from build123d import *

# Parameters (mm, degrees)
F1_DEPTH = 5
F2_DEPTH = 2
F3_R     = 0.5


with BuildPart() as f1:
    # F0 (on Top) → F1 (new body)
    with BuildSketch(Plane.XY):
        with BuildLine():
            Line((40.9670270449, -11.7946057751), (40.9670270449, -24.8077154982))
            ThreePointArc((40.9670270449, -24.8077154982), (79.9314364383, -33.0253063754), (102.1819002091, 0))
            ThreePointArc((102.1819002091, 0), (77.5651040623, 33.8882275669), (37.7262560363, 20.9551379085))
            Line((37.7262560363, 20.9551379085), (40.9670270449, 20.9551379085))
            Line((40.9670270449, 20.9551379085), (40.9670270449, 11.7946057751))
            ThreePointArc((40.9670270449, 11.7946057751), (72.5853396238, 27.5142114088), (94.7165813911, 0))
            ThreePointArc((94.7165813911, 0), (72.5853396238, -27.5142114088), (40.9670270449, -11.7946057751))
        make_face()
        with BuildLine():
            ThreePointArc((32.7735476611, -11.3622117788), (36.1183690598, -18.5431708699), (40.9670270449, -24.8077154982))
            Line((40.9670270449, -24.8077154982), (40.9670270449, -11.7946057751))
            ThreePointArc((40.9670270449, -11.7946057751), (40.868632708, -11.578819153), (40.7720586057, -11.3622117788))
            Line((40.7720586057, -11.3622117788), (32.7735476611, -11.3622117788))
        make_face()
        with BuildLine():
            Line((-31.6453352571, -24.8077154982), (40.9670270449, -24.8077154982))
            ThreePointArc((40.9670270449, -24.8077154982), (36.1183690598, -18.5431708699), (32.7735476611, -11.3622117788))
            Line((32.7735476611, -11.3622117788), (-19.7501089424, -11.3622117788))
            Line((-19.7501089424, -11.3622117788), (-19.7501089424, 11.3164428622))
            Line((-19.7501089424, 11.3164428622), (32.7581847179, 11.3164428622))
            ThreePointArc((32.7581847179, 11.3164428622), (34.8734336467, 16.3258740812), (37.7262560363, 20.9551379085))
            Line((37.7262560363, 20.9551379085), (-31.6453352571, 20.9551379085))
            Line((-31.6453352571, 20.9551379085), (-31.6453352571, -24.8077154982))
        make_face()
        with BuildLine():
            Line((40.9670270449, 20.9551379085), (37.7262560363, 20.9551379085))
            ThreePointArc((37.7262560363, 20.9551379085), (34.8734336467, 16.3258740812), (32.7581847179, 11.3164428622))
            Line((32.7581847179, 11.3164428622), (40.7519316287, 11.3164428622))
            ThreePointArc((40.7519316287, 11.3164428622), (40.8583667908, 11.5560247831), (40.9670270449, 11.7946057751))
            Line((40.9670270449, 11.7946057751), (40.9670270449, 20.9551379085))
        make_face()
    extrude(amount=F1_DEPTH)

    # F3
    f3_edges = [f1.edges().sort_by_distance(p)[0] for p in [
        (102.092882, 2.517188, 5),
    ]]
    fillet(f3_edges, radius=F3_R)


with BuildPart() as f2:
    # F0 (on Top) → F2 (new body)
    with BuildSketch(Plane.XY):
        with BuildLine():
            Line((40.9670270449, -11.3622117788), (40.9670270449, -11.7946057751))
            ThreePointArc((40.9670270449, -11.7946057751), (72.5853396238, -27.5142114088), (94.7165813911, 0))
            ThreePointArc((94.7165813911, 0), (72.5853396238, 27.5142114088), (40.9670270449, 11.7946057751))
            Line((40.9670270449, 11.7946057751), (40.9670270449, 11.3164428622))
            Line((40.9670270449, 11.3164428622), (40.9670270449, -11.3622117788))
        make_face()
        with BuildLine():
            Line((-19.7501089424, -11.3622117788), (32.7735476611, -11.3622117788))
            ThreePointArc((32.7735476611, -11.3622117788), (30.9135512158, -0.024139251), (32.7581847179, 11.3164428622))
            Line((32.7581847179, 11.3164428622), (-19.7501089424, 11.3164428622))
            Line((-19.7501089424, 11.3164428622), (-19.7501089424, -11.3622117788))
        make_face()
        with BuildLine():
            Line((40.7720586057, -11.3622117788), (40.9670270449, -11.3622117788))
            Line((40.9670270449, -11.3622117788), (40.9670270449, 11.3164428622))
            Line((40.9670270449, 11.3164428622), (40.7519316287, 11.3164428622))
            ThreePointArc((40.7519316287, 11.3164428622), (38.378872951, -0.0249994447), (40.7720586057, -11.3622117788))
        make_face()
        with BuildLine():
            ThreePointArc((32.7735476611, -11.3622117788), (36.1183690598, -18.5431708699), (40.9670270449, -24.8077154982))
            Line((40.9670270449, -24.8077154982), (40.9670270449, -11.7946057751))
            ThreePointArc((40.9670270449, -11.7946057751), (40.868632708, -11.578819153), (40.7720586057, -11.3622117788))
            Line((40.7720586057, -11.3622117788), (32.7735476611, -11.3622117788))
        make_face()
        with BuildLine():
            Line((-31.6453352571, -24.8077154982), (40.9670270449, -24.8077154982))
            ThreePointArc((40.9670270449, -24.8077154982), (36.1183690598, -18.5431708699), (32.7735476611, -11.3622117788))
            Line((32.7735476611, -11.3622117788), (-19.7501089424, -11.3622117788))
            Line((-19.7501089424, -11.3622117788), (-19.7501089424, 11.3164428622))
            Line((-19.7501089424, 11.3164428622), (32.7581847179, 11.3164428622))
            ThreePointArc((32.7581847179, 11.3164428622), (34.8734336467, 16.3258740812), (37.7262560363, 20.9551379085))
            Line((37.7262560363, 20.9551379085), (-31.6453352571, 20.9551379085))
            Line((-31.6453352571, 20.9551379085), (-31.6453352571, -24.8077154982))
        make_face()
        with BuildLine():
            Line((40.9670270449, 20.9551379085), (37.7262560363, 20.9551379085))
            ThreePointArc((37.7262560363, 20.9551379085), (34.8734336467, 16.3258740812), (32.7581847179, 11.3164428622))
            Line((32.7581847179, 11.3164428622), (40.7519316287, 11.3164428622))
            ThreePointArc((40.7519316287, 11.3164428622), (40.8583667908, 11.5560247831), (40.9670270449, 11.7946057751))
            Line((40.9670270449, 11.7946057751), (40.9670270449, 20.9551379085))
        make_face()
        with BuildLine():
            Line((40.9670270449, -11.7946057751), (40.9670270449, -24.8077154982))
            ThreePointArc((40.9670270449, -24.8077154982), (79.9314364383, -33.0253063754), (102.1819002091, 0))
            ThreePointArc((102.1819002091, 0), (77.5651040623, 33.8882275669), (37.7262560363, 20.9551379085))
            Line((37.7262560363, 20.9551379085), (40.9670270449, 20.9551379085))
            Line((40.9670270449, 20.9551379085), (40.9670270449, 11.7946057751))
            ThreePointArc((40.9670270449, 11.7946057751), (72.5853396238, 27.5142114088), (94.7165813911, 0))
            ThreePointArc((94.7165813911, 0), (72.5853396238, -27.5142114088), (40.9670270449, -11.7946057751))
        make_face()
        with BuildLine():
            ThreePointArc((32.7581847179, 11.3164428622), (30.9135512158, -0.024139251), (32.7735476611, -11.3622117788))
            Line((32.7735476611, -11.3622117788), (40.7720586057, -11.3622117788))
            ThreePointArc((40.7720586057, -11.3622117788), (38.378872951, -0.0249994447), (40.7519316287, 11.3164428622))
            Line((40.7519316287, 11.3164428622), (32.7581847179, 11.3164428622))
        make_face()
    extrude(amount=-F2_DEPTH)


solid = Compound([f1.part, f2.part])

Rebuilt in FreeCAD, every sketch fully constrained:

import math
import FreeCAD as App
import Part
import Sketcher
from FreeCAD import Vector
Q = App.Units.Quantity


def edges_at(feature, points):
    """Names of the edges that pass closest to the given points."""
    edges = feature.Shape.Edges
    near = lambda p: min(range(len(edges)), key=lambda i: edges[i].distToShape(Part.Vertex(*p))[0])
    return sorted({f"Edge{near(p) + 1}" for p in points})

doc = App.newDocument("Part")
body = doc.addObject("PartDesign::Body", "Body")

sketch1 = body.newObject("Sketcher::SketchObject", "Sketch")
sketch1.AttachmentSupport = (doc.getObject("XY_Plane"), [""])
sketch1.MapMode = "FlatFace"
sketch1.addGeometry([
    Part.ArcOfCircle(Part.Circle(Vector(66.55, 0, 0), Vector(0, 0, 1), 35.63), math.radians(0), math.radians(144)),
    Part.LineSegment(Vector(37.73, 20.96, 0), Vector(-31.65, 20.96, 0)),
    Part.LineSegment(Vector(-31.65, 20.96, 0), Vector(-31.65, -24.81, 0)),
    Part.LineSegment(Vector(-31.65, -24.81, 0), Vector(40.97, -24.81, 0)),
    Part.ArcOfCircle(Part.Circle(Vector(66.55, 0, 0), Vector(0, 0, 1), 35.63), math.radians(-136), math.radians(0)),
    Part.LineSegment(Vector(-19.75, 11.32, 0), Vector(40.75, 11.32, 0)),
    Part.ArcOfCircle(Part.Circle(Vector(66.55, 0, 0), Vector(0, 0, 1), 28.17), math.radians(155.25), math.radians(156.31)),
    Part.ArcOfCircle(Part.Circle(Vector(66.55, 0, 0), Vector(0, 0, 1), 28.17), math.radians(0), math.radians(155)),
    Part.ArcOfCircle(Part.Circle(Vector(66.55, 0, 0), Vector(0, 0, 1), 28.17), math.radians(-155), math.radians(0)),
    Part.ArcOfCircle(Part.Circle(Vector(66.55, 0, 0), Vector(0, 0, 1), 28.17), math.radians(-156.21), math.radians(-155.25)),
    Part.LineSegment(Vector(40.77, -11.36, 0), Vector(-19.75, -11.36, 0)),
    Part.LineSegment(Vector(-19.75, -11.36, 0), Vector(-19.75, 11.32, 0)),
], False)
sketch1.addConstraint([
    Sketcher.Constraint("Coincident", 0, 2, 1, 1),
    Sketcher.Constraint("Coincident", 1, 2, 2, 1),
    Sketcher.Constraint("Coincident", 2, 2, 3, 1),
    Sketcher.Constraint("Coincident", 3, 2, 4, 1),
    Sketcher.Constraint("Tangent", 4, 2, 0, 1),
    Sketcher.Constraint("Coincident", 5, 2, 6, 2),
    Sketcher.Constraint("Tangent", 6, 1, 7, 2),
    Sketcher.Constraint("Tangent", 7, 1, 8, 2),
    Sketcher.Constraint("Tangent", 8, 1, 9, 2),
    Sketcher.Constraint("Coincident", 9, 1, 10, 1),
    Sketcher.Constraint("Coincident", 10, 2, 11, 1),
    Sketcher.Constraint("Coincident", 11, 2, 5, 1),
    Sketcher.Constraint("Horizontal", 1),
    Sketcher.Constraint("Vertical", 2),
    Sketcher.Constraint("Horizontal", 3),
    Sketcher.Constraint("Horizontal", 5),
    Sketcher.Constraint("Horizontal", 10),
    Sketcher.Constraint("Vertical", 11),
    Sketcher.Constraint("Coincident", 6, 3, 0, 3),
    Sketcher.Constraint("Coincident", 8, 3, 0, 3),
    Sketcher.Constraint("Equal", 0, 4),
    Sketcher.Constraint("Equal", 6, 9),
    Sketcher.Constraint("Symmetric", 6, 1, 8, 1, -1),
    Sketcher.Constraint("PointOnObject", 4, 2, -1),
    Sketcher.Constraint("PointOnObject", 7, 1, -1),
    Sketcher.Constraint("Vertical", 3, 2, 6, 1),
    Sketcher.Constraint("Radius", 0, Q("35.634179 mm")),
    Sketcher.Constraint("Radius", 6, Q("28.168861 mm")),
    Sketcher.Constraint("DistanceX", 1, 2, 1, 1, Q("69.371591 mm")),
    Sketcher.Constraint("DistanceX", 5, 1, 5, 2, Q("60.502041 mm")),
    Sketcher.Constraint("DistanceX", -1, 1, 4, 2, Q("102.1819 mm")),
    Sketcher.Constraint("DistanceX", 3, 1, 3, 2, Q("72.612362 mm")),
    Sketcher.Constraint("DistanceX", 10, 2, 10, 1, Q("60.522168 mm")),
    Sketcher.Constraint("DistanceY", 2, 2, 2, 1, Q("45.762853 mm")),
    Sketcher.Constraint("DistanceY", 11, 1, 11, 2, Q("22.678655 mm")),
])
pad1 = body.newObject("PartDesign::Pad", "Pad")
pad1.Profile = sketch1
pad1.Length = 5
doc.recompute()

fillet = body.newObject("PartDesign::Fillet", "Fillet")
fillet.Base = (pad1, edges_at(pad1, [(77.565, 33.888, 5)]))
fillet.Radius = 0.5
body2 = doc.addObject("PartDesign::Body", "Body001")

sketch2 = body2.newObject("Sketcher::SketchObject", "Sketch001")
sketch2.AttachmentSupport = (doc.getObject("XY_Plane001"), [""])
sketch2.MapMode = "FlatFace"
sketch2.addGeometry([
    Part.ArcOfCircle(Part.Circle(Vector(66.55, 0, 0), Vector(0, 0, 1), 35.63), math.radians(-136), math.radians(0)),
    Part.ArcOfCircle(Part.Circle(Vector(66.55, 0, 0), Vector(0, 0, 1), 35.63), math.radians(0), math.radians(144)),
    Part.LineSegment(Vector(37.73, 20.96, 0), Vector(-31.65, 20.96, 0)),
    Part.LineSegment(Vector(-31.65, 20.96, 0), Vector(-31.65, -24.81, 0)),
    Part.LineSegment(Vector(-31.65, -24.81, 0), Vector(40.97, -24.81, 0)),
    Part.ArcOfCircle(Part.Circle(Vector(66.55, 0, 0), Vector(0, 0, 1), 28.17), math.radians(-156.21), math.radians(-155.25)),
    Part.LineSegment(Vector(40.77, -11.36, 0), Vector(40.97, -11.36, 0)),
    Part.LineSegment(Vector(40.97, -11.36, 0), Vector(40.97, -11.79, 0)),
    Part.LineSegment(Vector(40.97, 11.32, 0), Vector(40.75, 11.32, 0)),
    Part.ArcOfCircle(Part.Circle(Vector(66.55, 0, 0), Vector(0, 0, 1), 28.17), math.radians(155.25), math.radians(156.31)),
    Part.LineSegment(Vector(40.97, 11.79, 0), Vector(40.97, 11.32, 0)),
], False)
sketch2.addConstraint([
    Sketcher.Constraint("Tangent", 0, 2, 1, 1),
    Sketcher.Constraint("Coincident", 1, 2, 2, 1),
    Sketcher.Constraint("Coincident", 2, 2, 3, 1),
    Sketcher.Constraint("Coincident", 3, 2, 4, 1),
    Sketcher.Constraint("Coincident", 4, 2, 0, 1),
    Sketcher.Constraint("Coincident", 5, 1, 6, 1),
    Sketcher.Constraint("Coincident", 6, 2, 7, 1),
    Sketcher.Constraint("Coincident", 7, 2, 5, 2),
    Sketcher.Constraint("Coincident", 8, 2, 9, 2),
    Sketcher.Constraint("Coincident", 9, 1, 10, 1),
    Sketcher.Constraint("Coincident", 10, 2, 8, 1),
    Sketcher.Constraint("Horizontal", 2),
    Sketcher.Constraint("Vertical", 3),
    Sketcher.Constraint("Horizontal", 4),
    Sketcher.Constraint("Horizontal", 6),
    Sketcher.Constraint("Vertical", 7),
    Sketcher.Constraint("Horizontal", 8),
    Sketcher.Constraint("Vertical", 10),
    Sketcher.Constraint("Coincident", 5, 3, 0, 3),
    Sketcher.Constraint("Coincident", 9, 3, 0, 3),
    Sketcher.Constraint("Equal", 0, 1),
    Sketcher.Constraint("Equal", 5, 9),
    Sketcher.Constraint("Symmetric", 7, 2, 9, 1, -1),
    Sketcher.Constraint("PointOnObject", 0, 2, -1),
    Sketcher.Constraint("Vertical", 4, 2, 6, 2),
    Sketcher.Constraint("Radius", 0, Q("35.634179 mm")),
    Sketcher.Constraint("Radius", 9, Q("28.168861 mm")),
    Sketcher.Constraint("DistanceX", 2, 2, 2, 1, Q("69.371591 mm")),
    Sketcher.Constraint("DistanceX", 6, 1, 6, 2, Q("0.194968 mm")),
    Sketcher.Constraint("DistanceX", -1, 1, 0, 2, Q("102.1819 mm")),
    Sketcher.Constraint("DistanceX", 4, 1, 4, 2, Q("72.612362 mm")),
    Sketcher.Constraint("DistanceX", 8, 2, 8, 1, Q("0.215095 mm")),
    Sketcher.Constraint("DistanceY", 3, 2, 3, 1, Q("45.762853 mm")),
])
pad2 = body2.newObject("PartDesign::Pad", "Pad001")
pad2.Profile = sketch2
pad2.Length = 2
pad2.Reversed = True

doc.recompute()
